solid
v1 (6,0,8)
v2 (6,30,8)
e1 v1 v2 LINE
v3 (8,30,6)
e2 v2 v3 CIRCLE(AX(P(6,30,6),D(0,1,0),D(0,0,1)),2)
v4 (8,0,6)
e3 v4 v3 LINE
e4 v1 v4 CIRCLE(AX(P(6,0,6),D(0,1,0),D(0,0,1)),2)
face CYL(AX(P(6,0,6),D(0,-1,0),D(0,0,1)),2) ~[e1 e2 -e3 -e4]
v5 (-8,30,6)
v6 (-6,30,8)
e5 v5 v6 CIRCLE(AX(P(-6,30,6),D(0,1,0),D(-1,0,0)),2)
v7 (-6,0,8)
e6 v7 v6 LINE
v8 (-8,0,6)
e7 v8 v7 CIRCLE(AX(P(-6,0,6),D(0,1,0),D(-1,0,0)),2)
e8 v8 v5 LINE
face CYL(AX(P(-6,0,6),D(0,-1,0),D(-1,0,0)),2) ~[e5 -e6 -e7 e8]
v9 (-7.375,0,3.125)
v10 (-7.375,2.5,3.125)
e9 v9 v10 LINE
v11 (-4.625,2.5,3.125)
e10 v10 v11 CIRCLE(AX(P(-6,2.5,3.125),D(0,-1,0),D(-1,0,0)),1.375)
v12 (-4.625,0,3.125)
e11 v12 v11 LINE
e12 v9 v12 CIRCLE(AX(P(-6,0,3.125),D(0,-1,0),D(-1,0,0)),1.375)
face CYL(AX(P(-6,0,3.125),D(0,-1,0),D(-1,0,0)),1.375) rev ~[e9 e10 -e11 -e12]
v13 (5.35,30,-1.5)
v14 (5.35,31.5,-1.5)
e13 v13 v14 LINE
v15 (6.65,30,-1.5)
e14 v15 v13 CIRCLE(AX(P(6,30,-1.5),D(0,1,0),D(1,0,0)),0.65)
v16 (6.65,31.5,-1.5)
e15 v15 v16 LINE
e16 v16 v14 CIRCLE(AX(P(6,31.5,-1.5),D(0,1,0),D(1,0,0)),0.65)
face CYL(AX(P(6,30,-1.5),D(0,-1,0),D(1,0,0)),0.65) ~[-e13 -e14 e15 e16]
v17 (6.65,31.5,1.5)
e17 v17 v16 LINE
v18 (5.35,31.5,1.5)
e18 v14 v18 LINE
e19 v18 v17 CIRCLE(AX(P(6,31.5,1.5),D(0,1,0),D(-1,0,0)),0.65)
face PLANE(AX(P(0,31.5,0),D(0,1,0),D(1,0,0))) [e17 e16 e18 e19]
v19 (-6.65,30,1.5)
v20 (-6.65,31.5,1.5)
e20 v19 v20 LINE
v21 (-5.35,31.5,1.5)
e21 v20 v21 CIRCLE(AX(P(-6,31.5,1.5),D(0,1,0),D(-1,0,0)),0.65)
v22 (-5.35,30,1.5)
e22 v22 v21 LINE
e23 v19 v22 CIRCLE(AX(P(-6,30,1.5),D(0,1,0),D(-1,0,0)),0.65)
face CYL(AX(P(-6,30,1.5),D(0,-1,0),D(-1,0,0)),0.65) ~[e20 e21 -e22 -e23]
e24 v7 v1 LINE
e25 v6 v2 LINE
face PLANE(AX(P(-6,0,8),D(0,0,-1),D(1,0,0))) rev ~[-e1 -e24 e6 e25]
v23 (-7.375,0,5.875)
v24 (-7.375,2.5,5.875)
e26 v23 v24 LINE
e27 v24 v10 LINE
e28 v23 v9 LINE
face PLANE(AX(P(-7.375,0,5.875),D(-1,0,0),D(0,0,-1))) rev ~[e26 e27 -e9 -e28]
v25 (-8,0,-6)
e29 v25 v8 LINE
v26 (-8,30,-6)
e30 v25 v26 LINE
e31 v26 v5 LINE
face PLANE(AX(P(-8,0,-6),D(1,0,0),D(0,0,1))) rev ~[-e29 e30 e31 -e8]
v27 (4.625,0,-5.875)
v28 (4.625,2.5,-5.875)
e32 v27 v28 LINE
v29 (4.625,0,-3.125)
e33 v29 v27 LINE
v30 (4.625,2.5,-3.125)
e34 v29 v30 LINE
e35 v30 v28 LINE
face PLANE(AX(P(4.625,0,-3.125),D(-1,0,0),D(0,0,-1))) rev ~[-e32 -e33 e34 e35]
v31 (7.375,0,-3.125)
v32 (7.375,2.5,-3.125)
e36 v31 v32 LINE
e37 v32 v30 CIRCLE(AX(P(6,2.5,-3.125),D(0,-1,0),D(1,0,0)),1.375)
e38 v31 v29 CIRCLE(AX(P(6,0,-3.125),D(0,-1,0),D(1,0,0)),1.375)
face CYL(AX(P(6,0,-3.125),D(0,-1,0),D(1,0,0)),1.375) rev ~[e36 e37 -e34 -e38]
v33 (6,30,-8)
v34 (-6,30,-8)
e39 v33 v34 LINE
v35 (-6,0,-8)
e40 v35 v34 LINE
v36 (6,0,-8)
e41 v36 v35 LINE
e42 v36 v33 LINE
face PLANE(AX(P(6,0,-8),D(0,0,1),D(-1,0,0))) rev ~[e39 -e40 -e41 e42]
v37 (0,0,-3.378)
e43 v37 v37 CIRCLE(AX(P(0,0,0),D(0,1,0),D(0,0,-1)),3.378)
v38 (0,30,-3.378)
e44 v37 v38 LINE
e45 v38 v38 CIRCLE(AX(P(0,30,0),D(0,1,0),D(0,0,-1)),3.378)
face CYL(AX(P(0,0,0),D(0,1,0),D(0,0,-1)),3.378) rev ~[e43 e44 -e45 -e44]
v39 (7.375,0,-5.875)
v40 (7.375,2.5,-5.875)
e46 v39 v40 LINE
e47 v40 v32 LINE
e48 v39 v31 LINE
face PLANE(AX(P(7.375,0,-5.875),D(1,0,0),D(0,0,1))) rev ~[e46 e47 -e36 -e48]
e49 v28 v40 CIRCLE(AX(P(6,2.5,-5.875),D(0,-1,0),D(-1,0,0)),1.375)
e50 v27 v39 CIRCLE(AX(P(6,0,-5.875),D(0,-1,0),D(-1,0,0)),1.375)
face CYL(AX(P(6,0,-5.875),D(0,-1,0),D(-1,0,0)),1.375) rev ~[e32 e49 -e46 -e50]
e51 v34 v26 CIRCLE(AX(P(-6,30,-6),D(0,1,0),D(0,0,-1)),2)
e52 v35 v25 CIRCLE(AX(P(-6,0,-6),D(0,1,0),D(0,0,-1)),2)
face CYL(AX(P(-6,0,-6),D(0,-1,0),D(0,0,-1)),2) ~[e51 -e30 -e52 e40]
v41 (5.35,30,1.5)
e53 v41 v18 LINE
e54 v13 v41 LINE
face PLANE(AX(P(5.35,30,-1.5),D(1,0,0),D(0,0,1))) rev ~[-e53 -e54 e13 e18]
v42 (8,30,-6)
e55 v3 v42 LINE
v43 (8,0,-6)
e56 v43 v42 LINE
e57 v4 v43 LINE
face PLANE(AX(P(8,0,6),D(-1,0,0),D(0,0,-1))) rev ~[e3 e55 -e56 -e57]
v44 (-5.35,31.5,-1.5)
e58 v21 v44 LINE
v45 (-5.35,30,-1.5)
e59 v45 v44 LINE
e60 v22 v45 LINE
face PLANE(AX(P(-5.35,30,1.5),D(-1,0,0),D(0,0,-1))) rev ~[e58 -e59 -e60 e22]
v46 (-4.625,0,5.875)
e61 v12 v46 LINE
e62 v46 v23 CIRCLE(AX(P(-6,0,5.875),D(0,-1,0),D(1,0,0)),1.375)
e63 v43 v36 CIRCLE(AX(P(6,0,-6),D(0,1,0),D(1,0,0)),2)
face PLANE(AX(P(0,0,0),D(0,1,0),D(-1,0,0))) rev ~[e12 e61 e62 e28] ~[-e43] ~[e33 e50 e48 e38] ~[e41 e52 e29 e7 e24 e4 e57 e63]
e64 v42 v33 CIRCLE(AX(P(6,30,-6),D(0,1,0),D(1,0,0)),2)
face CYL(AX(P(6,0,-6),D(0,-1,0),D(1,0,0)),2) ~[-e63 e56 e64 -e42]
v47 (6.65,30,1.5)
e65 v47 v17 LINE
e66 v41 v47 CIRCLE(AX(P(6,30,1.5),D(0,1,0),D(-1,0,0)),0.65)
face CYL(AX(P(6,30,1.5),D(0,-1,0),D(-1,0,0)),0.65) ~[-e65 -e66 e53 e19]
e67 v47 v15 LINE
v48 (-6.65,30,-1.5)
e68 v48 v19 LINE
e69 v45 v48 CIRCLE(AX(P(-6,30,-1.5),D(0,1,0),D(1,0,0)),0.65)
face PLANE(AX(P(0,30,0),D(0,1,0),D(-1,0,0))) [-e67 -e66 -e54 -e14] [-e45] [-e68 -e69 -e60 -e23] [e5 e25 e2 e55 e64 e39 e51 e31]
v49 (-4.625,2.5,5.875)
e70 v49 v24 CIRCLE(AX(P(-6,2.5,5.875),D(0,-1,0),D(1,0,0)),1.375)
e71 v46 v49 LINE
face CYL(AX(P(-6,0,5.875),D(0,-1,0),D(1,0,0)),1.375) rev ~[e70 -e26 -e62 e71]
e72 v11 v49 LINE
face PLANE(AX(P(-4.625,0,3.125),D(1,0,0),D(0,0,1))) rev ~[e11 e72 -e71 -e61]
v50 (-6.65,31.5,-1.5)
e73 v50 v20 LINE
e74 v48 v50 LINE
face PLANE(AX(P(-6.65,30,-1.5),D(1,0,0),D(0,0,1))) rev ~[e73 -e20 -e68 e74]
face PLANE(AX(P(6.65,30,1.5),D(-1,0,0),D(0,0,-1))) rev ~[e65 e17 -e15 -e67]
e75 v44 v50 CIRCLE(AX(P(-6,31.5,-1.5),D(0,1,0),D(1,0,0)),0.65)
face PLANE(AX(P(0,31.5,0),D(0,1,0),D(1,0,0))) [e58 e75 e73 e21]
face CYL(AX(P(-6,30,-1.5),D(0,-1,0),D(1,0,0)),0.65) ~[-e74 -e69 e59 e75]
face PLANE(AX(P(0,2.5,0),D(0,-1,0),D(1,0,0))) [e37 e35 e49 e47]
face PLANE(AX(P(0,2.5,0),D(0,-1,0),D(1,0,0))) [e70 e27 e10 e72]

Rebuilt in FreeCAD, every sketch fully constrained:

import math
import FreeCAD as App
import Part
import Sketcher
Q = App.Units.Quantity

doc = App.newDocument("Part")
body = doc.addObject("PartDesign::Body", "Body")

sketch1 = body.newObject("Sketcher::SketchObject", "Sketch")
sketch1.AttachmentSupport = (doc.getObject("XZ_Plane"), [""])
sketch1.MapMode = "FlatFace"
sketch1.addGeometry([
    Part.ArcOfCircle(Part.Circle(App.Vector(-6, 6, 0), App.Vector(0, 0, 1), 2), math.radians(90), math.radians(180)),
    Part.LineSegment(App.Vector(-6, 8, 0), App.Vector(6, 8, 0)),
    Part.ArcOfCircle(Part.Circle(App.Vector(6, 6, 0), App.Vector(0, 0, 1), 2), math.radians(0), math.radians(90)),
    Part.LineSegment(App.Vector(8, 6, 0), App.Vector(8, -6, 0)),
    Part.ArcOfCircle(Part.Circle(App.Vector(6, -6, 0), App.Vector(0, 0, 1), 2), math.radians(-90), math.radians(0)),
    Part.LineSegment(App.Vector(6, -8, 0), App.Vector(-6, -8, 0)),
    Part.ArcOfCircle(Part.Circle(App.Vector(-6, -6, 0), App.Vector(0, 0, 1), 2), math.radians(180), math.radians(270)),
    Part.LineSegment(App.Vector(-8, -6, 0), App.Vector(-8, 6, 0)),
], False)
sketch1.addConstraint([
    Sketcher.Constraint("Tangent", 0, 1, 1, 1),
    Sketcher.Constraint("Tangent", 1, 2, 2, 2),
    Sketcher.Constraint("Tangent", 2, 1, 3, 1),
    Sketcher.Constraint("Tangent", 3, 2, 4, 2),
    Sketcher.Constraint("Tangent", 4, 1, 5, 1),
    Sketcher.Constraint("Tangent", 5, 2, 6, 2),
    Sketcher.Constraint("Tangent", 6, 1, 7, 1),
    Sketcher.Constraint("Tangent", 7, 2, 0, 2),
    Sketcher.Constraint("Horizontal", 1),
    Sketcher.Constraint("Vertical", 3),
    Sketcher.Constraint("Horizontal", 5),
    Sketcher.Constraint("Vertical", 7),
    Sketcher.Constraint("Equal", 0, 2),
    Sketcher.Constraint("Equal", 2, 4),
    Sketcher.Constraint("Equal", 4, 6),
    Sketcher.Constraint("Symmetric", 0, 3, 4, 3, -1, 1),
    Sketcher.Constraint("Equal", 5, 3),
    Sketcher.Constraint("Radius", 0, Q("2 mm")),
    Sketcher.Constraint("DistanceY", -1, 1, 0, 1, Q("8 mm")),
])
pad1 = body.newObject("PartDesign::Pad", "Pad")
pad1.Profile = sketch1
pad1.Length = 30
pad1.Reversed = True

sketch2 = body.newObject("Sketcher::SketchObject", "Sketch001")
sketch2.AttachmentSupport = (doc.getObject("XZ_Plane"), [""])
sketch2.MapMode = "FlatFace"
sketch2.addGeometry([
    Part.ArcOfCircle(Part.Circle(App.Vector(-6, 5.9, 0), App.Vector(0, 0, 1), 1.4), math.radians(0), math.radians(180)),
    Part.LineSegment(App.Vector(-7.4, 5.9, 0), App.Vector(-7.4, 3.1, 0)),
    Part.ArcOfCircle(Part.Circle(App.Vector(-6, 3.1, 0), App.Vector(0, 0, 1), 1.4), math.radians(180), math.radians(360)),
    Part.LineSegment(App.Vector(-4.6, 3.1, 0), App.Vector(-4.6, 5.9, 0)),
    Part.ArcOfCircle(Part.Circle(App.Vector(6, -3.1, 0), App.Vector(0, 0, 1), 1.4), math.radians(0), math.radians(180)),
    Part.LineSegment(App.Vector(4.6, -3.1, 0), App.Vector(4.6, -5.9, 0)),
    Part.ArcOfCircle(Part.Circle(App.Vector(6, -5.9, 0), App.Vector(0, 0, 1), 1.4), math.radians(180), math.radians(360)),
    Part.LineSegment(App.Vector(7.4, -5.9, 0), App.Vector(7.4, -3.1, 0)),
], False)
sketch2.addConstraint([
    Sketcher.Constraint("Tangent", 0, 2, 1, 1),
    Sketcher.Constraint("Tangent", 1, 2, 2, 1),
    Sketcher.Constraint("Tangent", 2, 2, 3, 1),
    Sketcher.Constraint("Tangent", 3, 2, 0, 1),
    Sketcher.Constraint("Tangent", 4, 2, 5, 1),
    Sketcher.Constraint("Tangent", 5, 2, 6, 1),
    Sketcher.Constraint("Tangent", 6, 2, 7, 1),
    Sketcher.Constraint("Tangent", 7, 2, 4, 1),
    Sketcher.Constraint("Vertical", 1),
    Sketcher.Constraint("Vertical", 3),
    Sketcher.Constraint("Vertical", 5),
    Sketcher.Constraint("Vertical", 7),
    Sketcher.Constraint("Equal", 2, 4),
    Sketcher.Constraint("Symmetric", 2, 3, 4, 3, -1, 1),
    Sketcher.Constraint("Equal", 3, 5),
    Sketcher.Constraint("DistanceX", 0, 3, -1, 1, Q("6 mm")),
    Sketcher.Constraint("Radius", 0, Q("1.375 mm")),
    Sketcher.Constraint("DistanceY", 4, 3, 0, 3, Q("9 mm")),
    Sketcher.Constraint("DistanceY", 1, 2, 1, 1, Q("2.75 mm")),
])
pocket1 = body.newObject("PartDesign::Pocket", "Pocket")
pocket1.Profile = sketch2
pocket1.Length = 2.5

sketch3 = body.newObject("Sketcher::SketchObject", "Sketch002")
sketch3.AttachmentSupport = (doc.getObject("XZ_Plane"), [""])
sketch3.MapMode = "FlatFace"
sketch3.addGeometry(Part.Circle(App.Vector(0, 0, 0), App.Vector(0, 0, 1), 3.4), False)
sketch3.addConstraint([
    Sketcher.Constraint("Coincident", 0, 3, -1, 1),
    Sketcher.Constraint("Diameter", 0, Q("6.756 mm")),
])
doc.recompute()
hole = body.newObject("PartDesign::Hole", "Hole")
hole.Profile = sketch3
hole.ThreadType = "None"
hole.Diameter = 6.756
hole.DepthType = "ThroughAll"

sketch4 = body.newObject("Sketcher::SketchObject", "Sketch003")
sketch4.AttachmentSupport = (doc.getObject("XZ_Plane"), [""])
sketch4.MapMode = "FlatFace"
sketch4.AttachmentOffset = App.Placement(App.Vector(0, 0, -30), App.Rotation())
sketch4.addGeometry([
    Part.ArcOfCircle(Part.Circle(App.Vector(-6, -1.5, 0), App.Vector(0, 0, 1), 0.7), math.radians(180), math.radians(360)),
    Part.LineSegment(App.Vector(-6.7, -1.5, 0), App.Vector(-6.7, 1.5, 0)),
    Part.ArcOfCircle(Part.Circle(App.Vector(-6, 1.5, 0), App.Vector(0, 0, 1), 0.7), math.radians(0), math.radians(180)),
    Part.LineSegment(App.Vector(-5.3, 1.5, 0), App.Vector(-5.3, -1.5, 0)),
    Part.ArcOfCircle(Part.Circle(App.Vector(6, -1.5, 0), App.Vector(0, 0, 1), 0.7), math.radians(180), math.radians(360)),
    Part.LineSegment(App.Vector(5.3, -1.5, 0), App.Vector(5.3, 1.5, 0)),
    Part.ArcOfCircle(Part.Circle(App.Vector(6, 1.5, 0), App.Vector(0, 0, 1), 0.7), math.radians(0), math.radians(180)),
    Part.LineSegment(App.Vector(6.7, 1.5, 0), App.Vector(6.7, -1.5, 0)),
], False)
sketch4.addConstraint([
    Sketcher.Constraint("Tangent", 0, 1, 1, 1),
    Sketcher.Constraint("Tangent", 1, 2, 2, 2),
    Sketcher.Constraint("Tangent", 2, 1, 3, 1),
    Sketcher.Constraint("Tangent", 3, 2, 0, 2),
    Sketcher.Constraint("Tangent", 4, 1, 5, 1),
    Sketcher.Constraint("Tangent", 5, 2, 6, 2),
    Sketcher.Constraint("Tangent", 6, 1, 7, 1),
    Sketcher.Constraint("Tangent", 7, 2, 4, 2),
    Sketcher.Constraint("Vertical", 1),
    Sketcher.Constraint("Vertical", 3),
    Sketcher.Constraint("Vertical", 5),
    Sketcher.Constraint("Vertical", 7),
    Sketcher.Constraint("Equal", 2, 4),
    Sketcher.Constraint("Symmetric", 2, 3, 4, 3, -1, 1),
    Sketcher.Constraint("Horizontal", 0, 3, 4, 3),
    Sketcher.Constraint("Horizontal", 2, 3, 6, 3),
    Sketcher.Constraint("DistanceY", 1, 1, 1, 2, Q("3 mm")),
    Sketcher.Constraint("Radius", 0, Q("0.65 mm")),
    Sketcher.Constraint("DistanceX", 0, 3, -1, 1, Q("6 mm")),
])
pad2 = body.newObject("PartDesign::Pad", "Pad001")
pad2.Profile = sketch4
pad2.Length = 1.5
pad2.Reversed = True

doc.recompute()
